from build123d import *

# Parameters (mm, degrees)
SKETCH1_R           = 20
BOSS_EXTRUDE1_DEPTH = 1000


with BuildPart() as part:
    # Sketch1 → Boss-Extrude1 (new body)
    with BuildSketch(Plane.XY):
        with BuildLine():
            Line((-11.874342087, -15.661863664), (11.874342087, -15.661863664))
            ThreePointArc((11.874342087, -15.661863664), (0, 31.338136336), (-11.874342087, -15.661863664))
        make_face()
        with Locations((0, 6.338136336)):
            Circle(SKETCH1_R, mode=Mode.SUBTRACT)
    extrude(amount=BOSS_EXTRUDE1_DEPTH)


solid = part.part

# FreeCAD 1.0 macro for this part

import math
import FreeCAD as App
import Part
import Sketcher

V = App.Vector
Q = App.Units.Quantity

doc = App.newDocument("Part")
params = doc.addObject("Spreadsheet::Sheet", "Params")
for row, (alias, value) in enumerate([
    ("sketch1_diameter", "40 mm"),
    ("sketch1_radius", "25 mm"),
    ("pad1_length", "1000 mm"),
], start=1):
    params.set(f"A{row}", alias)
    params.set(f"B{row}", "=" + value)
    params.setAlias(f"B{row}", alias)

body = doc.addObject("PartDesign::Body", "Body")

# Sketch on XY plane
sketch1 = body.newObject("Sketcher::SketchObject", "Sketch")
sketch1.AttachmentSupport = (doc.getObject("XY_Plane"), [""])
sketch1.MapMode = "FlatFace"
sketch1.addGeometry([
    Part.LineSegment(V(-11.874342, -15.661864, 0), V(11.874342, -15.661864, 0)),
    Part.ArcOfCircle(Part.Circle(V(0, 6.338136, 0), V(0, 0, 1), 25), math.radians(-61.642363), math.radians(241.642363)),
    Part.Circle(V(0, 6.338136, 0), V(0, 0, 1), 20),
], False)
sketch1.addConstraint([
    Sketcher.Constraint("Coincident", 0, 1, 1, 2),
    Sketcher.Constraint("Coincident", 1, 1, 0, 2),
    Sketcher.Constraint("Horizontal", 0),
    Sketcher.Constraint("Coincident", 2, 3, 1, 3),
    Sketcher.Constraint("PointOnObject", 1, 3, -2),
    Sketcher.Constraint("Diameter", 2, Q("40 mm")),
    Sketcher.Constraint("Radius", 1, Q("25 mm")),
    Sketcher.Constraint("DistanceY", 0, 1, 1, 3, Q("22 mm")),
    Sketcher.Constraint("DistanceY", -1, 1, 1, 3, Q("6.338136 mm")),
])
sketch1.setExpression("Constraints[5]", "Params.sketch1_diameter")
sketch1.setExpression("Constraints[6]", "Params.sketch1_radius")
pad1 = body.newObject("PartDesign::Pad", "Pad")
pad1.Profile = sketch1
pad1.setExpression("Length", "Params.pad1_length")

doc.recompute()
